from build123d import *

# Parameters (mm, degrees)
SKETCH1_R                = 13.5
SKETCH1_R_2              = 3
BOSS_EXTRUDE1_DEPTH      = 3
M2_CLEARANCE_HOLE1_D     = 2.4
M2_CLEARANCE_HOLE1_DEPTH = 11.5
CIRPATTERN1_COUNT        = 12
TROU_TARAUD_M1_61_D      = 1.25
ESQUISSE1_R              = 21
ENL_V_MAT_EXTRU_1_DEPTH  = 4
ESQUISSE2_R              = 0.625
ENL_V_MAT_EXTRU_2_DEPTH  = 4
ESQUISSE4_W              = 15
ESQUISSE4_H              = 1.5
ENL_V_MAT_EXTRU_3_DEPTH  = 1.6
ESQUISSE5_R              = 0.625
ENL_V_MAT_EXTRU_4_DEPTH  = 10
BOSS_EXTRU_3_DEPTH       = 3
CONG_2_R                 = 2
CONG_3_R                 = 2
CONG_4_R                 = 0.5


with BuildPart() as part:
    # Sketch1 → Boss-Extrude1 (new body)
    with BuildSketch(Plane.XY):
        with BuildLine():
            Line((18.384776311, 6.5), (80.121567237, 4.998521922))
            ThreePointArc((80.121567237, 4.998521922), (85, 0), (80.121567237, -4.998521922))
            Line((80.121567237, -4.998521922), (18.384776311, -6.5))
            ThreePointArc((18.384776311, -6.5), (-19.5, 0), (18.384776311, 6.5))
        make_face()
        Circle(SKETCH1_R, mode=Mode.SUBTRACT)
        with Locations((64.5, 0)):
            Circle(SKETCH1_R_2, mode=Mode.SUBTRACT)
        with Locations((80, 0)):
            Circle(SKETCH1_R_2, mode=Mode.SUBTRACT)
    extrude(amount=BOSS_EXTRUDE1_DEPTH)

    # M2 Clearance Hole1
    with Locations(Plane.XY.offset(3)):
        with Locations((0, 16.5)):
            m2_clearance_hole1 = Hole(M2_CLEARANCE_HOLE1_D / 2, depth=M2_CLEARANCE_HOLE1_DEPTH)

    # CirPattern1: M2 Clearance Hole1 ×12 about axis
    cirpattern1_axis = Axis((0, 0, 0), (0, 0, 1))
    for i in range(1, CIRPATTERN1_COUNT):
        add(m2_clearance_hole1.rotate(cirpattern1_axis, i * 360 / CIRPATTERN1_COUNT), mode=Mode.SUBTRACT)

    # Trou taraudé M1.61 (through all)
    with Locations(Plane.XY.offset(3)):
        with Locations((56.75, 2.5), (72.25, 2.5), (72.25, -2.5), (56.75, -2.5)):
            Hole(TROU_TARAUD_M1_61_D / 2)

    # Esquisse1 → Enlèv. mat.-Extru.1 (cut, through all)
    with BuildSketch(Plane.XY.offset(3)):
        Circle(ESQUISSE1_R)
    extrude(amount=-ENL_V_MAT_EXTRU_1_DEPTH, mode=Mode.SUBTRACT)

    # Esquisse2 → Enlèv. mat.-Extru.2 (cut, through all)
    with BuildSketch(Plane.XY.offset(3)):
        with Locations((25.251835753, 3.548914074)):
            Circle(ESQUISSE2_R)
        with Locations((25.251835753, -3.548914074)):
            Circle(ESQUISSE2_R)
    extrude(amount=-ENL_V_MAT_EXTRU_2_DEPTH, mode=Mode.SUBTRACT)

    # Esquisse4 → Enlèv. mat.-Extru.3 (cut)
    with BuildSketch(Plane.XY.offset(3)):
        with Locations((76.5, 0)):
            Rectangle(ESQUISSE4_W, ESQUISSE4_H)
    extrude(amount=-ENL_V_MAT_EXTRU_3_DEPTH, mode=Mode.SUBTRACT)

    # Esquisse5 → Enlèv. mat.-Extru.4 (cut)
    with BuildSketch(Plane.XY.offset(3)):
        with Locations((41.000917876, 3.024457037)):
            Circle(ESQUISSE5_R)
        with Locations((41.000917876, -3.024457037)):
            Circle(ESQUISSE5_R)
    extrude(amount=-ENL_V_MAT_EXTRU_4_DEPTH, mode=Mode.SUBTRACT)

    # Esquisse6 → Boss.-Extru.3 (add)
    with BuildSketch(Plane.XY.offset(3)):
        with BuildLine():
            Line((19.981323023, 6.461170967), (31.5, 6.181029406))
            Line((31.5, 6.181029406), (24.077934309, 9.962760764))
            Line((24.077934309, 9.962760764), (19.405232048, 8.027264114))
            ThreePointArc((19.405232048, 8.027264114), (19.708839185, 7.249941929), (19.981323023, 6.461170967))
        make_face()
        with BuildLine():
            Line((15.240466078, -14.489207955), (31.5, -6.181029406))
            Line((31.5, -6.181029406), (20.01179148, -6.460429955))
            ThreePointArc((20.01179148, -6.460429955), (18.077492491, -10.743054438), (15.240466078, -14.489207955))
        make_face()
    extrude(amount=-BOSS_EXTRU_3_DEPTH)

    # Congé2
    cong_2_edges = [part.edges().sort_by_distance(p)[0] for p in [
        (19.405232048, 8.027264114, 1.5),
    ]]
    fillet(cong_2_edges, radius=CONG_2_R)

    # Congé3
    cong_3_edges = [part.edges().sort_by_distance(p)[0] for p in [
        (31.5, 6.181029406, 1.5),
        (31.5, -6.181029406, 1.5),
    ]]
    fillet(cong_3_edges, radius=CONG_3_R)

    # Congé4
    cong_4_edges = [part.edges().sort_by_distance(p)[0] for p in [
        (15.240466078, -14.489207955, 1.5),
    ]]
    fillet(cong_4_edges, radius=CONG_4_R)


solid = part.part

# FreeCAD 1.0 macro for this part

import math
import FreeCAD as App
import Part
import Sketcher
Q = App.Units.Quantity


def edges_at(feature, points):
    """Names of the edges that pass closest to the given points."""
    edges = feature.Shape.Edges
    near = lambda p: min(range(len(edges)), key=lambda i: edges[i].distToShape(Part.Vertex(*p))[0])
    return sorted({f"Edge{near(p) + 1}" for p in points})


def add_polygon(sketch, points):
    """Adds a closed chain of lines whose ends are joined by coincident constraints."""
    first, n = sketch.GeometryCount, len(points)
    for a, b in zip(points, points[1:] + points[:1]):
        sketch.addGeometry(Part.LineSegment(App.Vector(*a, 0), App.Vector(*b, 0)), False)
    for i in range(n):
        sketch.addConstraint(Sketcher.Constraint("Coincident", first + i, 2, first + (i + 1) % n, 1))

doc = App.newDocument("Part")
body = doc.addObject("PartDesign::Body", "Body")

sketch1 = body.newObject("Sketcher::SketchObject", "Sketch")
sketch1.AttachmentSupport = (doc.getObject("XY_Plane"), [""])
sketch1.MapMode = "FlatFace"
sketch1.addGeometry(Part.LineSegment(App.Vector(80.1, 5, 0), App.Vector(18.4, 6.5, 0)), False)
sketch1.addGeometry(Part.ArcOfCircle(Part.Circle(App.Vector(0, 0, 0), App.Vector(0, 0, 1), 19.5), math.radians(19), math.radians(341)), False)
sketch1.addGeometry(Part.LineSegment(App.Vector(18.4, -6.5, 0), App.Vector(80.1, -5, 0)), False)
sketch1.addGeometry(Part.ArcOfCircle(Part.Circle(App.Vector(80, 0, 0), App.Vector(0, 0, 1), 5), math.radians(-89), math.radians(89)), False)
sketch1.addGeometry(Part.Circle(App.Vector(80, 0, 0), App.Vector(0, 0, 1), 3), False)
sketch1.addGeometry(Part.Circle(App.Vector(64.5, 0, 0), App.Vector(0, 0, 1), 3), False)
sketch1.addGeometry(Part.Circle(App.Vector(0, 0, 0), App.Vector(0, 0, 1), 13.5), False)
sketch1.addConstraint(Sketcher.Constraint("Coincident", 0, 2, 1, 1))
sketch1.addConstraint(Sketcher.Constraint("Coincident", 1, 2, 2, 1))
sketch1.addConstraint(Sketcher.Constraint("Tangent", 2, 2, 3, 1))
sketch1.addConstraint(Sketcher.Constraint("Tangent", 3, 2, 0, 1))
sketch1.addConstraint(Sketcher.Constraint("Coincident", 1, 3, -1, 1))
sketch1.addConstraint(Sketcher.Constraint("Coincident", 6, 3, -1, 1))
sketch1.addConstraint(Sketcher.Constraint("Coincident", 4, 3, 3, 3))
sketch1.addConstraint(Sketcher.Constraint("Equal", 4, 5))
sketch1.addConstraint(Sketcher.Constraint("Symmetric", 2, 2, 3, 2, -1))
sketch1.addConstraint(Sketcher.Constraint("PointOnObject", 5, 3, -1))
sketch1.addConstraint(Sketcher.Constraint("Diameter", 4, Q("6 mm")))
sketch1.addConstraint(Sketcher.Constraint("Diameter", 6, Q("27 mm")))
sketch1.addConstraint(Sketcher.Constraint("Radius", 3, Q("5 mm")))
sketch1.addConstraint(Sketcher.Constraint("Radius", 1, Q("19.5 mm")))
sketch1.addConstraint(Sketcher.Constraint("DistanceX", -1, 1, 3, 3, Q("80 mm")))
sketch1.addConstraint(Sketcher.Constraint("DistanceY", 1, 2, 0, 2, Q("13 mm")))
sketch1.addConstraint(Sketcher.Constraint("DistanceX", -1, 1, 5, 3, Q("64.5 mm")))
pad1 = body.newObject("PartDesign::Pad", "Pad")
pad1.Profile = sketch1
pad1.Length = 3

sketch2 = body.newObject("Sketcher::SketchObject", "Sketch001")
sketch2.AttachmentSupport = (doc.getObject("XY_Plane"), [""])
sketch2.MapMode = "FlatFace"
sketch2.AttachmentOffset = App.Placement(App.Vector(0, 0, 3), App.Rotation())
sketch2.addGeometry(Part.Circle(App.Vector(0, 16.5, 0), App.Vector(0, 0, 1), 1.2), False)
sketch2.addConstraint(Sketcher.Constraint("PointOnObject", 0, 3, -2))
sketch2.addConstraint(Sketcher.Constraint("Diameter", 0, Q("2.4 mm")))
sketch2.addConstraint(Sketcher.Constraint("DistanceY", -1, 1, 0, 3, Q("16.5 mm")))
doc.recompute()
hole = body.newObject("PartDesign::Hole", "Hole")
hole.Profile = sketch2
hole.ThreadType = "None"
hole.Diameter = 2.4
hole.DepthType = "Dimension"
hole.Depth = 11.5
hole.DrillPoint = "Flat"
doc.recompute()

polarpattern = body.newObject("PartDesign::PolarPattern", "PolarPattern")
polarpattern.Originals = [hole]
polarpattern.Axis = (doc.getObject("Z_Axis"), [""])
polarpattern.Angle = 360
polarpattern.Occurrences = 12
body.Tip = polarpattern

sketch3 = body.newObject("Sketcher::SketchObject", "Sketch002")
sketch3.AttachmentSupport = (doc.getObject("XY_Plane"), [""])
sketch3.MapMode = "FlatFace"
sketch3.AttachmentOffset = App.Placement(App.Vector(0, 0, 3), App.Rotation())
sketch3.addGeometry(Part.Circle(App.Vector(56.8, 2.5, 0), App.Vector(0, 0, 1), 0.6), False)
sketch3.addGeometry(Part.Circle(App.Vector(72.2, 2.5, 0), App.Vector(0, 0, 1), 0.6), False)
sketch3.addGeometry(Part.Circle(App.Vector(72.2, -2.5, 0), App.Vector(0, 0, 1), 0.6), False)
sketch3.addGeometry(Part.Circle(App.Vector(56.8, -2.5, 0), App.Vector(0, 0, 1), 0.6), False)
sketch3.addConstraint(Sketcher.Constraint("Equal", 0, 1))
sketch3.addConstraint(Sketcher.Constraint("Equal", 1, 2))
sketch3.addConstraint(Sketcher.Constraint("Equal", 2, 3))
sketch3.addConstraint(Sketcher.Constraint("Symmetric", 1, 3, 2, 3, -1))
sketch3.addConstraint(Sketcher.Constraint("Symmetric", 0, 3, 3, 3, -1))
sketch3.addConstraint(Sketcher.Constraint("Horizontal", 0, 3, 1, 3))
sketch3.addConstraint(Sketcher.Constraint("Diameter", 0, Q("1.25 mm")))
sketch3.addConstraint(Sketcher.Constraint("DistanceY", 2, 3, 1, 3, Q("5 mm")))
sketch3.addConstraint(Sketcher.Constraint("DistanceX", 0, 3, 1, 3, Q("15.5 mm")))
sketch3.addConstraint(Sketcher.Constraint("DistanceX", -1, 1, 0, 3, Q("56.75 mm")))
doc.recompute()
hole2 = body.newObject("PartDesign::Hole", "Hole001")
hole2.Profile = sketch3
hole2.ThreadType = "None"
hole2.Diameter = 1.25
hole2.DepthType = "ThroughAll"

sketch4 = body.newObject("Sketcher::SketchObject", "Sketch003")
sketch4.AttachmentSupport = (doc.getObject("XY_Plane"), [""])
sketch4.MapMode = "FlatFace"
sketch4.AttachmentOffset = App.Placement(App.Vector(0, 0, 3), App.Rotation())
sketch4.addGeometry(Part.Circle(App.Vector(0, 0, 0), App.Vector(0, 0, 1), 21), False)
sketch4.addConstraint(Sketcher.Constraint("Coincident", 0, 3, -1, 1))
sketch4.addConstraint(Sketcher.Constraint("Diameter", 0, Q("42 mm")))
pocket1 = body.newObject("PartDesign::Pocket", "Pocket")
pocket1.Profile = sketch4
pocket1.Type = "ThroughAll"

sketch5 = body.newObject("Sketcher::SketchObject", "Sketch004")
sketch5.AttachmentSupport = (doc.getObject("XY_Plane"), [""])
sketch5.MapMode = "FlatFace"
sketch5.AttachmentOffset = App.Placement(App.Vector(0, 0, 3), App.Rotation())
sketch5.addGeometry(Part.Circle(App.Vector(25.3, 3.5, 0), App.Vector(0, 0, 1), 0.6), False)
sketch5.addGeometry(Part.Circle(App.Vector(25.3, -3.5, 0), App.Vector(0, 0, 1), 0.6), False)
sketch5.addConstraint(Sketcher.Constraint("Equal", 0, 1))
sketch5.addConstraint(Sketcher.Constraint("Symmetric", 0, 3, 1, 3, -1))
sketch5.addConstraint(Sketcher.Constraint("Diameter", 0, Q("1.25 mm")))
sketch5.addConstraint(Sketcher.Constraint("DistanceY", 1, 3, 0, 3, Q("7.097828 mm")))
sketch5.addConstraint(Sketcher.Constraint("DistanceX", -1, 1, 0, 3, Q("25.251836 mm")))
pocket2 = body.newObject("PartDesign::Pocket", "Pocket001")
pocket2.Profile = sketch5
pocket2.Type = "ThroughAll"

sketch6 = body.newObject("Sketcher::SketchObject", "Sketch005")
sketch6.AttachmentSupport = (doc.getObject("XY_Plane"), [""])
sketch6.MapMode = "FlatFace"
sketch6.AttachmentOffset = App.Placement(App.Vector(0, 0, 3), App.Rotation())
add_polygon(sketch6, [(69, 0.8), (69, -0.8), (84, -0.8), (84, 0.8)])
sketch6.addConstraint(Sketcher.Constraint("Vertical", 0))
sketch6.addConstraint(Sketcher.Constraint("Horizontal", 1))
sketch6.addConstraint(Sketcher.Constraint("Vertical", 2))
sketch6.addConstraint(Sketcher.Constraint("Horizontal", 3))
sketch6.addConstraint(Sketcher.Constraint("DistanceX", 1, 1, 1, 2, Q("15 mm")))
sketch6.addConstraint(Sketcher.Constraint("DistanceY", 0, 2, 0, 1, Q("1.5 mm")))
sketch6.addConstraint(Sketcher.Constraint("DistanceX", -1, 1, 0, 2, Q("69 mm")))
sketch6.addConstraint(Sketcher.Constraint("DistanceY", 0, 2, -1, 1, Q("0.75 mm")))
pocket3 = body.newObject("PartDesign::Pocket", "Pocket002")
pocket3.Profile = sketch6
pocket3.Length = 1.6

sketch7 = body.newObject("Sketcher::SketchObject", "Sketch006")
sketch7.AttachmentSupport = (doc.getObject("XY_Plane"), [""])
sketch7.MapMode = "FlatFace"
sketch7.AttachmentOffset = App.Placement(App.Vector(0, 0, 3), App.Rotation())
sketch7.addGeometry(Part.Circle(App.Vector(41, 3, 0), App.Vector(0, 0, 1), 0.6), False)
sketch7.addGeometry(Part.Circle(App.Vector(41, -3, 0), App.Vector(0, 0, 1), 0.6), False)
sketch7.addConstraint(Sketcher.Constraint("Equal", 0, 1))
sketch7.addConstraint(Sketcher.Constraint("Symmetric", 0, 3, 1, 3, -1))
sketch7.addConstraint(Sketcher.Constraint("Diameter", 0, Q("1.25 mm")))
sketch7.addConstraint(Sketcher.Constraint("DistanceX", -1, 1, 0, 3, Q("41.000918 mm")))
sketch7.addConstraint(Sketcher.Constraint("DistanceY", -1, 1, 0, 3, Q("3.024457 mm")))
pocket4 = body.newObject("PartDesign::Pocket", "Pocket003")
pocket4.Profile = sketch7
pocket4.Length = 10

sketch8 = body.newObject("Sketcher::SketchObject", "Sketch007")
sketch8.AttachmentSupport = (doc.getObject("XY_Plane"), [""])
sketch8.MapMode = "FlatFace"
sketch8.AttachmentOffset = App.Placement(App.Vector(0, 0, 3), App.Rotation())
sketch8.addGeometry(Part.LineSegment(App.Vector(20, 6.5, 0), App.Vector(31.5, 6.2, 0)), False)
sketch8.addGeometry(Part.LineSegment(App.Vector(31.5, 6.2, 0), App.Vector(24.1, 10, 0)), False)
sketch8.addGeometry(Part.LineSegment(App.Vector(24.1, 10, 0), App.Vector(19.4, 8, 0)), False)
sketch8.addGeometry(Part.ArcOfCircle(Part.Circle(App.Vector(0, 0, 0), App.Vector(0, 0, 1), 21), math.radians(17.92), math.radians(22.47)), False)
sketch8.addGeometry(Part.LineSegment(App.Vector(15.2, -14.5, 0), App.Vector(31.5, -6.2, 0)), False)
sketch8.addGeometry(Part.LineSegment(App.Vector(31.5, -6.2, 0), App.Vector(20, -6.5, 0)), False)
sketch8.addGeometry(Part.ArcOfCircle(Part.Circle(App.Vector(0, 0, 0), App.Vector(0, 0, 1), 21), math.radians(-44), math.radians(-18)), False)
sketch8.addConstraint(Sketcher.Constraint("Coincident", 0, 2, 1, 1))
sketch8.addConstraint(Sketcher.Constraint("Coincident", 1, 2, 2, 1))
sketch8.addConstraint(Sketcher.Constraint("Coincident", 2, 2, 3, 2))
sketch8.addConstraint(Sketcher.Constraint("Coincident", 3, 1, 0, 1))
sketch8.addConstraint(Sketcher.Constraint("Coincident", 4, 2, 5, 1))
sketch8.addConstraint(Sketcher.Constraint("Coincident", 5, 2, 6, 2))
sketch8.addConstraint(Sketcher.Constraint("Coincident", 6, 1, 4, 1))
sketch8.addConstraint(Sketcher.Constraint("Coincident", 3, 3, -1, 1))
sketch8.addConstraint(Sketcher.Constraint("Coincident", 6, 3, -1, 1))
sketch8.addConstraint(Sketcher.Constraint("Symmetric", 0, 2, 4, 2, -1))
sketch8.addConstraint(Sketcher.Constraint("Radius", 3, Q("21 mm")))
sketch8.addConstraint(Sketcher.Constraint("Angle", 1, Q("153 deg")))
sketch8.addConstraint(Sketcher.Constraint("Angle", 2, Q("-157.5 deg")))
sketch8.addConstraint(Sketcher.Constraint("DistanceX", -1, 1, 0, 2, Q("31.5 mm")))
sketch8.addConstraint(Sketcher.Constraint("Radius", 6, Q("21.028765 mm")))
sketch8.addConstraint(Sketcher.Constraint("DistanceY", 4, 2, 3, 1, Q("12.6422 mm")))
sketch8.addConstraint(Sketcher.Constraint("DistanceY", 5, 2, 4, 2, Q("0.279401 mm")))
sketch8.addConstraint(Sketcher.Constraint("Distance", 1, Q("8.329979 mm")))
sketch8.addConstraint(Sketcher.Constraint("DistanceY", -1, 1, 0, 2, Q("6.181029 mm")))
sketch8.addConstraint(Sketcher.Constraint("DistanceY", 6, 1, 5, 2, Q("8.028778 mm")))
pad2 = body.newObject("PartDesign::Pad", "Pad001")
pad2.Profile = sketch8
pad2.Length = 3
pad2.Reversed = True
doc.recompute()

fillet = body.newObject("PartDesign::Fillet", "Fillet")
fillet.Base = (pad2, edges_at(pad2, [(19.405, 8.027, 1.5)]))
fillet.Radius = 2
doc.recompute()

fillet2 = body.newObject("PartDesign::Fillet", "Fillet001")
fillet2.Base = (fillet, edges_at(fillet, [(31.5, 6.181, 1.5), (31.5, -6.181, 1.5)]))
fillet2.Radius = 2
doc.recompute()

fillet3 = body.newObject("PartDesign::Fillet", "Fillet002")
fillet3.Base = (fillet2, edges_at(fillet2, [(15.24, -14.489, 1.5)]))
fillet3.Radius = 0.5

doc.recompute()
